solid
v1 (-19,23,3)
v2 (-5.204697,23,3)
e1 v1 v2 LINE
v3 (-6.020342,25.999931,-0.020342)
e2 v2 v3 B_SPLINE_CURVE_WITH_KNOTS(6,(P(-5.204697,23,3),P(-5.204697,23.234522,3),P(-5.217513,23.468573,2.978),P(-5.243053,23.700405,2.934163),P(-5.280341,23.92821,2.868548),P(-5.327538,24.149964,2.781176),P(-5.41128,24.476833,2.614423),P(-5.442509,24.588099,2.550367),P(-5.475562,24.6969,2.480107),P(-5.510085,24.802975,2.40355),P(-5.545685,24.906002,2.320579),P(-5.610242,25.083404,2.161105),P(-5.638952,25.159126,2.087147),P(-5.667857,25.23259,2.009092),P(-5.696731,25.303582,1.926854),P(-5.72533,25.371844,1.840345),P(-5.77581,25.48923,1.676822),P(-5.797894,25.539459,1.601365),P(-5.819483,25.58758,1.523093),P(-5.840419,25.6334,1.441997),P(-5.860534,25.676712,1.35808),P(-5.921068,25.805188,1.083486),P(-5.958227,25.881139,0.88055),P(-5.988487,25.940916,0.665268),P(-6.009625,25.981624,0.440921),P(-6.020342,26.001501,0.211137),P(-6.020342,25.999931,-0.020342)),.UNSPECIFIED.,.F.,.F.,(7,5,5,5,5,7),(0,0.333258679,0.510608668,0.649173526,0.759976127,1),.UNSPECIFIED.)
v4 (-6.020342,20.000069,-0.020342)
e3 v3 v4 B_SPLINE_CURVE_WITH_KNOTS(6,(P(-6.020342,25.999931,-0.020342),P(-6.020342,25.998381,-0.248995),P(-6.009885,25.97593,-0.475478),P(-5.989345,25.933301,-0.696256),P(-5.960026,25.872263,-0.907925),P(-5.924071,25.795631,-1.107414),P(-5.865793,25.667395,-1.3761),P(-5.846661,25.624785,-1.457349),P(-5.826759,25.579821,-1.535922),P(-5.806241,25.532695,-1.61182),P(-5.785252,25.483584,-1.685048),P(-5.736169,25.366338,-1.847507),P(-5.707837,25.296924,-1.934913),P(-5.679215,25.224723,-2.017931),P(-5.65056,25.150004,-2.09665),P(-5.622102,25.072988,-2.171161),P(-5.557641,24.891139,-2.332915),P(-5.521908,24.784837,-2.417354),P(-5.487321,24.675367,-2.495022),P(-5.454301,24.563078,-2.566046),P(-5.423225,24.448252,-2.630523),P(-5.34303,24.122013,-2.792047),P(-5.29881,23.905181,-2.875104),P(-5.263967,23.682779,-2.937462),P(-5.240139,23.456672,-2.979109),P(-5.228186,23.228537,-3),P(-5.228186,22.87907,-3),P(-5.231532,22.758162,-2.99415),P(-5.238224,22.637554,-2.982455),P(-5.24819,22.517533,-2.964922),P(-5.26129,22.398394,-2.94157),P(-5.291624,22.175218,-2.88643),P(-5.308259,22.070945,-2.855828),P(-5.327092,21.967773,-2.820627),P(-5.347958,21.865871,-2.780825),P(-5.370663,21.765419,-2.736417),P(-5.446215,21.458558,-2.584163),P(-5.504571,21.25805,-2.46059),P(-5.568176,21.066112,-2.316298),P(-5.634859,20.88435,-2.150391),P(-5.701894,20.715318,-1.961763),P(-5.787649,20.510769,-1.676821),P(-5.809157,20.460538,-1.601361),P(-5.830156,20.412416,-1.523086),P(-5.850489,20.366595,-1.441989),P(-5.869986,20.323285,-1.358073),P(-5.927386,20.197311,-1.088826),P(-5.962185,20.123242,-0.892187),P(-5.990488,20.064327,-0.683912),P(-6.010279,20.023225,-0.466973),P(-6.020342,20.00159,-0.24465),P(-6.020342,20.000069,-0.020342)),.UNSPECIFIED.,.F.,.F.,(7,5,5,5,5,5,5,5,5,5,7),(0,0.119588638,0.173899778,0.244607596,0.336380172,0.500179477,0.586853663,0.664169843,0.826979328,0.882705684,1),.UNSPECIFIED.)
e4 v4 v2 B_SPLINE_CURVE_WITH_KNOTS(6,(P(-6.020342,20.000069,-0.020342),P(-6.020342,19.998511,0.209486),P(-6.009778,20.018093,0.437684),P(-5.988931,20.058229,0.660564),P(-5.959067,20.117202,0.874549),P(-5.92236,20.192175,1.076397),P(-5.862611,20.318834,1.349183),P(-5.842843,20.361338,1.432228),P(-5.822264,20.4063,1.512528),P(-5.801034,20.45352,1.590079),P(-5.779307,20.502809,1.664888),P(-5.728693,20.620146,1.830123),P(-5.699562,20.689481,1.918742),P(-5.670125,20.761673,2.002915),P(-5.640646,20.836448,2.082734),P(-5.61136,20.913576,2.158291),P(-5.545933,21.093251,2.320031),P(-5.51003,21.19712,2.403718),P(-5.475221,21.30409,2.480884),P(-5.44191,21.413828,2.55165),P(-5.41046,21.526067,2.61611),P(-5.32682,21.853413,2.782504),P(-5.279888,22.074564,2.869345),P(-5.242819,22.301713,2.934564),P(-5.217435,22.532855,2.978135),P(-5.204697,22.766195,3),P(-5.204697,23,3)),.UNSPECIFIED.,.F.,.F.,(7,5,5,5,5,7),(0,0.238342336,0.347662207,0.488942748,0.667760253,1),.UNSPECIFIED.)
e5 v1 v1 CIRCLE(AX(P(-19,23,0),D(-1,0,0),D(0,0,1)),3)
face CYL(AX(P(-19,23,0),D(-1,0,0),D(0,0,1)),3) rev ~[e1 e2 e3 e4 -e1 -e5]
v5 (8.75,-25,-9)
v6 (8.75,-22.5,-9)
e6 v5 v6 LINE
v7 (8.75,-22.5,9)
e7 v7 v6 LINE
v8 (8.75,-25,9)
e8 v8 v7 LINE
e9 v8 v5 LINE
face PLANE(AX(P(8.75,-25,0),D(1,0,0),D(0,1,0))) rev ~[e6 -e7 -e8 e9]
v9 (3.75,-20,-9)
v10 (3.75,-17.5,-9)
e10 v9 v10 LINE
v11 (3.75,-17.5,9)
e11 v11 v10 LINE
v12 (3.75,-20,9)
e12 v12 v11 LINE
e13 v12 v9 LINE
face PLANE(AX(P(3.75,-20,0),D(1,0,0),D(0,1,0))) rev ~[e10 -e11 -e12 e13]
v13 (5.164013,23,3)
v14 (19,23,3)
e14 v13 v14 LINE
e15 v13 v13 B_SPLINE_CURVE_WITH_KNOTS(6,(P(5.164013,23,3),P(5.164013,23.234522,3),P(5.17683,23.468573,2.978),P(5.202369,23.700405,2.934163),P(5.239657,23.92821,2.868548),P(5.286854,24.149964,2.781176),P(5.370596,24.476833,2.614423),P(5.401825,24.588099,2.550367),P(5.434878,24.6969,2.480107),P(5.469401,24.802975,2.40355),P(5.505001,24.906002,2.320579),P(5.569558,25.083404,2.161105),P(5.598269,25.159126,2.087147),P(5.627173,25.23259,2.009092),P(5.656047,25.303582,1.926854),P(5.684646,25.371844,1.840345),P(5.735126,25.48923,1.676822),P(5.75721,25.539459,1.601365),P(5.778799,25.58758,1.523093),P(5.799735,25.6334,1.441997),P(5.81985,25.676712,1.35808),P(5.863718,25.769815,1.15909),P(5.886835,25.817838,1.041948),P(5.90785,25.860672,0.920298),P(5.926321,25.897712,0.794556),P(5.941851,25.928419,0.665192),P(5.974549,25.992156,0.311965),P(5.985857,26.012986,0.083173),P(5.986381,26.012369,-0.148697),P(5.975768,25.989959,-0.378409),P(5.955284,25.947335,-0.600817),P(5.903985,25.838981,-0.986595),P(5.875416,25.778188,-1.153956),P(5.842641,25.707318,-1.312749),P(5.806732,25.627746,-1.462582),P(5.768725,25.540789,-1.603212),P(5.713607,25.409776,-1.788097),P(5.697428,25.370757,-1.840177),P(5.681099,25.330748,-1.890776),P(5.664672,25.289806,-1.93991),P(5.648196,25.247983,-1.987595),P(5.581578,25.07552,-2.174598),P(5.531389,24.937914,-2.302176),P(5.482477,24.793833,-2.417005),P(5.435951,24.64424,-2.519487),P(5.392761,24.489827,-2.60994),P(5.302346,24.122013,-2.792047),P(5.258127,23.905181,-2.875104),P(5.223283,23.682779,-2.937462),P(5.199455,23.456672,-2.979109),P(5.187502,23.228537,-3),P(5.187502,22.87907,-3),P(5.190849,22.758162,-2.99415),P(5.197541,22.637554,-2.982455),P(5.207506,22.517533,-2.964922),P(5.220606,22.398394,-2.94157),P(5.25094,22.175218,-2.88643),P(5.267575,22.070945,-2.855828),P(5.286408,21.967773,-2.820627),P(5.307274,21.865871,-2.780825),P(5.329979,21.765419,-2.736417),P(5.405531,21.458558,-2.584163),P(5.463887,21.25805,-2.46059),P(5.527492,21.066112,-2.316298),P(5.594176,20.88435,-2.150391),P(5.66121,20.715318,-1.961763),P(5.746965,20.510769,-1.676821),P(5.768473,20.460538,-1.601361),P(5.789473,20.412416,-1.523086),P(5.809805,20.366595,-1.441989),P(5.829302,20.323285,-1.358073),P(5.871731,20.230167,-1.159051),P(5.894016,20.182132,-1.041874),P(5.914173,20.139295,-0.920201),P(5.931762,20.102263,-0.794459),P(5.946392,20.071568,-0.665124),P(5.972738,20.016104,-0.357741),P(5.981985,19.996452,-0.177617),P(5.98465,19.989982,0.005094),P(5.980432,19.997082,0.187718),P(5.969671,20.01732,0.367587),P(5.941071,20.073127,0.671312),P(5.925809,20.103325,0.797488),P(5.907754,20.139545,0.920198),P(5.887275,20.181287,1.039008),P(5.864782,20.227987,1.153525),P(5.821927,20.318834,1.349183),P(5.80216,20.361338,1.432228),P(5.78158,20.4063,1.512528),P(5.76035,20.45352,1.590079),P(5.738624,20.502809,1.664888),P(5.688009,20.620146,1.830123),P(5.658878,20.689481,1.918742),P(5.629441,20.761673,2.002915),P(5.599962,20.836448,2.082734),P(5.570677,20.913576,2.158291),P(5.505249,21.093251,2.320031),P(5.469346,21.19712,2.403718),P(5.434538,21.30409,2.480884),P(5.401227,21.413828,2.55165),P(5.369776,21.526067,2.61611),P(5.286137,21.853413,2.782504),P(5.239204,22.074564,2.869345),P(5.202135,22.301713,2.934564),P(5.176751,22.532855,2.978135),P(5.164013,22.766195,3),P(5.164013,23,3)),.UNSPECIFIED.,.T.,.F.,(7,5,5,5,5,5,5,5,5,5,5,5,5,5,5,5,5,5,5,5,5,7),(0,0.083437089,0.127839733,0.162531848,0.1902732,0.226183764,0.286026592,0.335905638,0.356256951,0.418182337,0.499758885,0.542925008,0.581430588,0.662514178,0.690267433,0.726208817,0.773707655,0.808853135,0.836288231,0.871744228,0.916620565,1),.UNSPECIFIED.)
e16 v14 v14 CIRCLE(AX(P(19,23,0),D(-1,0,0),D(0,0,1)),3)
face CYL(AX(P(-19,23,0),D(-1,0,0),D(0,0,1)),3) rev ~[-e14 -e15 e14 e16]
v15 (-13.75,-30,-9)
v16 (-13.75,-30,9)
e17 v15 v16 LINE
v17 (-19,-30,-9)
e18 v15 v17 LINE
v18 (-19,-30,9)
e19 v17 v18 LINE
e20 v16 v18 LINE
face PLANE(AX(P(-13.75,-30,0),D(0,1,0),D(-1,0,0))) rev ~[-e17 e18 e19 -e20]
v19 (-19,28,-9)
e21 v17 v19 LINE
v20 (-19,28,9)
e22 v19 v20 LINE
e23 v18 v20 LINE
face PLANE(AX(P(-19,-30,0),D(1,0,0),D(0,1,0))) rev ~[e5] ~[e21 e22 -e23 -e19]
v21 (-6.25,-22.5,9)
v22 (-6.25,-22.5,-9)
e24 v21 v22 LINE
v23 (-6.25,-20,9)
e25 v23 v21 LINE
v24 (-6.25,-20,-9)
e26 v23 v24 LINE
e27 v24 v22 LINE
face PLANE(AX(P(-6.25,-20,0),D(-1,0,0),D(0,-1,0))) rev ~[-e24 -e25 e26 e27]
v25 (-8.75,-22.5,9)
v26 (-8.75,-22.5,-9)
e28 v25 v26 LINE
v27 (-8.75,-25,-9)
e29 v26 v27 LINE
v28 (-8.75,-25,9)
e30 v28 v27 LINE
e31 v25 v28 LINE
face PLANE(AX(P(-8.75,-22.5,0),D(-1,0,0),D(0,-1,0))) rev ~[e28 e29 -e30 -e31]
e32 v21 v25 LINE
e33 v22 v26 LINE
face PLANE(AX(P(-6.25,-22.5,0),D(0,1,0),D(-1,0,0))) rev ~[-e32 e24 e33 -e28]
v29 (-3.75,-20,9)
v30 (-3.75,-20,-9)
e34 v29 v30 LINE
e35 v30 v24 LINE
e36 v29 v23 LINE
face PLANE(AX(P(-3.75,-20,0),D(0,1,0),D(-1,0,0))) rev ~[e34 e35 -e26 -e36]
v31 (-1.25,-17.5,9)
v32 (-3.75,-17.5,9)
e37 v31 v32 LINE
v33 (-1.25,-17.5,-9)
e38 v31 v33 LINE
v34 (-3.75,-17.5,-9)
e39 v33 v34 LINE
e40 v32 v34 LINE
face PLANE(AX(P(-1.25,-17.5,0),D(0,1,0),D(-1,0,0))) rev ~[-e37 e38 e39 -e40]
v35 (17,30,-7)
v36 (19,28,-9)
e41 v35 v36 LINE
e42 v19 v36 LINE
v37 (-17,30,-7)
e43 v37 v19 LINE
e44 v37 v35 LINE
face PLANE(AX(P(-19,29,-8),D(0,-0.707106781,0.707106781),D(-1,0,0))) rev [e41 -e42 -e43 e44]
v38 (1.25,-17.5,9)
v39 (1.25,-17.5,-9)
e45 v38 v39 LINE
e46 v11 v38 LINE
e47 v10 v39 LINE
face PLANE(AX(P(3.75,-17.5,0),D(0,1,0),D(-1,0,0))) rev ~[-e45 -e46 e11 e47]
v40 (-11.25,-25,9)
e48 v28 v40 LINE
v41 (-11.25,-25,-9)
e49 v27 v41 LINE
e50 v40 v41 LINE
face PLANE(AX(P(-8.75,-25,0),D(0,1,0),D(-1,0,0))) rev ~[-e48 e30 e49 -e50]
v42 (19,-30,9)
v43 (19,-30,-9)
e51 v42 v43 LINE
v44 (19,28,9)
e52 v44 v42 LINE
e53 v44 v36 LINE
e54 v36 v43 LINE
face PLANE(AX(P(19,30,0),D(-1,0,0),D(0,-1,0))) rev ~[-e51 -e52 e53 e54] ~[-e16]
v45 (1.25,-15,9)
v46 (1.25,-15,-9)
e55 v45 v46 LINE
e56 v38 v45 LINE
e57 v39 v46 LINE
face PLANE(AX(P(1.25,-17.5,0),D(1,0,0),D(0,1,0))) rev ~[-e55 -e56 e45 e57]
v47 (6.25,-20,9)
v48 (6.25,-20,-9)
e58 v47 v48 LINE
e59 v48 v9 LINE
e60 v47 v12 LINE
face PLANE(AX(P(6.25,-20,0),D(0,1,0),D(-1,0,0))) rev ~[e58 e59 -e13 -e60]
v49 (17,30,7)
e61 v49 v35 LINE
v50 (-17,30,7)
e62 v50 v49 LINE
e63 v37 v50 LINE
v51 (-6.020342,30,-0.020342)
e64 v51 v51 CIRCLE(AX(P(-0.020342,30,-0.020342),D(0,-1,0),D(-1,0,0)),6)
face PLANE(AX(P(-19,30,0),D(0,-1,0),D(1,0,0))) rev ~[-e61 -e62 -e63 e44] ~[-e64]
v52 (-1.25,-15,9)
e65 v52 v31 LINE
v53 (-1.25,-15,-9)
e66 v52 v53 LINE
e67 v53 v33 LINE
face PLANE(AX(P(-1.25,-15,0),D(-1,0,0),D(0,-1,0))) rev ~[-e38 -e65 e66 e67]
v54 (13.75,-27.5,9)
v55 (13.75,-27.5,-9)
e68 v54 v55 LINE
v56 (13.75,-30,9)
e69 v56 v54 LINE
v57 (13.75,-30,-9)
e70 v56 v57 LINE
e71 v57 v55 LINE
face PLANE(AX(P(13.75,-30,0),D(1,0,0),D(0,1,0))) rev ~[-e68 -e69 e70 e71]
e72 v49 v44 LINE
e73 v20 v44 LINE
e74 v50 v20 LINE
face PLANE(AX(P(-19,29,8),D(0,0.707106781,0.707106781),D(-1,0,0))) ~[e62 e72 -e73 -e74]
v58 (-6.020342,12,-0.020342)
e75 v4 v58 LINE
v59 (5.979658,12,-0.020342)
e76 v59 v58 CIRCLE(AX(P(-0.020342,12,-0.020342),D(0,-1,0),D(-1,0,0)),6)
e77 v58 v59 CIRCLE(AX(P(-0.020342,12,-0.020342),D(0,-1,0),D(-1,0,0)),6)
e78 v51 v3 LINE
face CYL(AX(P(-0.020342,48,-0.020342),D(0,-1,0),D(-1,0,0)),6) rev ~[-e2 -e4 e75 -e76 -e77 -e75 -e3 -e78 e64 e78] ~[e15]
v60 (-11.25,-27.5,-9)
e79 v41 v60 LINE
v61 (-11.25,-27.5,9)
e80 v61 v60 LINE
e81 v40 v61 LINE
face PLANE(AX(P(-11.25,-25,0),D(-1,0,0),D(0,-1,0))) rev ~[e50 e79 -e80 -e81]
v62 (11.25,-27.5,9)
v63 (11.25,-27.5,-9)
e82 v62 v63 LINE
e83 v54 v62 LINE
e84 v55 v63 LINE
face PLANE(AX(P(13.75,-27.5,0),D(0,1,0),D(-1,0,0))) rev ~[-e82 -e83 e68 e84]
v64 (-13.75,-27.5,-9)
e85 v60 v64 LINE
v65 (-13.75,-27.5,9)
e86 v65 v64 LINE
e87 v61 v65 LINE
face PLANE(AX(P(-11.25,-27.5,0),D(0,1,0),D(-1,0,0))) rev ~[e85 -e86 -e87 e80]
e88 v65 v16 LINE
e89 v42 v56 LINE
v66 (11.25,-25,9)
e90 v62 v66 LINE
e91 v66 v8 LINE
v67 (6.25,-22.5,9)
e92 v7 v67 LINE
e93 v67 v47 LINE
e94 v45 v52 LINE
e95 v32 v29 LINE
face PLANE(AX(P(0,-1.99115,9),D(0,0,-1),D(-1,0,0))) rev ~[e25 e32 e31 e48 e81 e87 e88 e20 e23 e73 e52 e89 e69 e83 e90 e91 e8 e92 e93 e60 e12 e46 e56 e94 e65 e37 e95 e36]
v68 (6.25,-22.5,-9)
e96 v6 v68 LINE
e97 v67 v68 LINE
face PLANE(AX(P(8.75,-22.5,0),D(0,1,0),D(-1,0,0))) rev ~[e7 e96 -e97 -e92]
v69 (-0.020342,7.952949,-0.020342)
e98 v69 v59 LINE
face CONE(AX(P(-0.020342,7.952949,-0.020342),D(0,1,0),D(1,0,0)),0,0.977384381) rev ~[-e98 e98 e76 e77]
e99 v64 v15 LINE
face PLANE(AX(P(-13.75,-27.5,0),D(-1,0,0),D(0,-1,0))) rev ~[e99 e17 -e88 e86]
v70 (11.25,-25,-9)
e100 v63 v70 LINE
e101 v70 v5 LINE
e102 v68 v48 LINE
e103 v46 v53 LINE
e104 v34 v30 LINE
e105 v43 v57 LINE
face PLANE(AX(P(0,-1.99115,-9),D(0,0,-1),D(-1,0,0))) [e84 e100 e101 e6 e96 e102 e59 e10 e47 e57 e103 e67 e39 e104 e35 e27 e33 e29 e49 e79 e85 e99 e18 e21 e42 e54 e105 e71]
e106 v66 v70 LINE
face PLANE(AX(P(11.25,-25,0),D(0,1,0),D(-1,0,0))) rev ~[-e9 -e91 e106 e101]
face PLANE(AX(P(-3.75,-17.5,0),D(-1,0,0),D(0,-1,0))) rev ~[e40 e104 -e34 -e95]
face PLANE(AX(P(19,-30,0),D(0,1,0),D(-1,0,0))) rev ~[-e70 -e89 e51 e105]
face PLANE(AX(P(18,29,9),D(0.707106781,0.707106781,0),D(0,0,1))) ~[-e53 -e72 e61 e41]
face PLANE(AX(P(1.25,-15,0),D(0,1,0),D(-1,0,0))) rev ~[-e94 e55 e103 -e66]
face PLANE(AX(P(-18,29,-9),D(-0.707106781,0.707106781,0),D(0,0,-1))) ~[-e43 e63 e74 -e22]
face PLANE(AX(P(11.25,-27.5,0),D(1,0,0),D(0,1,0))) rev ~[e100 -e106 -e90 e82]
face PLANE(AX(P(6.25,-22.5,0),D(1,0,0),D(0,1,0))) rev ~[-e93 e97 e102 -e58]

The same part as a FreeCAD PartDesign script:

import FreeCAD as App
import Part
import Sketcher


def edges_at(feature, points):
    """Names of the edges that pass closest to the given points."""
    edges = feature.Shape.Edges
    near = lambda p: min(range(len(edges)), key=lambda i: edges[i].distToShape(Part.Vertex(*p))[0])
    return sorted({f"Edge{near(p) + 1}" for p in points})

doc = App.newDocument("Part")
body = doc.addObject("PartDesign::Body", "Body")

# Sketch on XY plane
sketch1 = body.newObject("Sketcher::SketchObject", "Sketch")
sketch1.AttachmentSupport = (doc.getObject("XY_Plane"), [""])
sketch1.MapMode = "FlatFace"
sketch1.addGeometry([
    Part.LineSegment(App.Vector(19, 30, 0), App.Vector(-19, 30, 0)),  # 0
    Part.LineSegment(App.Vector(-19, 30, 0), App.Vector(-19, -30, 0)),  # 1
    Part.LineSegment(App.Vector(-19, -30, 0), App.Vector(-13.8, -30, 0)),  # 2
    Part.LineSegment(App.Vector(-13.8, -30, 0), App.Vector(-13.8, -27.5, 0)),  # 3
    Part.LineSegment(App.Vector(-13.8, -27.5, 0), App.Vector(-11.2, -27.5, 0)),  # 4
    Part.LineSegment(App.Vector(-11.2, -27.5, 0), App.Vector(-11.2, -25, 0)),  # 5
    Part.LineSegment(App.Vector(-11.2, -25, 0), App.Vector(-8.8, -25, 0)),  # 6
    Part.LineSegment(App.Vector(-8.8, -25, 0), App.Vector(-8.8, -22.5, 0)),  # 7
    Part.LineSegment(App.Vector(-8.8, -22.5, 0), App.Vector(-6.2, -22.5, 0)),  # 8
    Part.LineSegment(App.Vector(-6.2, -22.5, 0), App.Vector(-6.2, -20, 0)),  # 9
    Part.LineSegment(App.Vector(-6.2, -20, 0), App.Vector(-3.8, -20, 0)),  # 10
    Part.LineSegment(App.Vector(-3.8, -20, 0), App.Vector(-3.8, -17.5, 0)),  # 11
    Part.LineSegment(App.Vector(-3.8, -17.5, 0), App.Vector(-1.2, -17.5, 0)),  # 12
    Part.LineSegment(App.Vector(-1.2, -17.5, 0), App.Vector(-1.2, -15, 0)),  # 13
    Part.LineSegment(App.Vector(-1.2, -15, 0), App.Vector(1.2, -15, 0)),  # 14
    Part.LineSegment(App.Vector(1.2, -15, 0), App.Vector(1.2, -17.5, 0)),  # 15
    Part.LineSegment(App.Vector(1.2, -17.5, 0), App.Vector(3.8, -17.5, 0)),  # 16
    Part.LineSegment(App.Vector(3.8, -17.5, 0), App.Vector(3.8, -20, 0)),  # 17
    Part.LineSegment(App.Vector(3.8, -20, 0), App.Vector(6.2, -20, 0)),  # 18
    Part.LineSegment(App.Vector(6.2, -20, 0), App.Vector(6.2, -22.5, 0)),  # 19
    Part.LineSegment(App.Vector(6.2, -22.5, 0), App.Vector(8.8, -22.5, 0)),  # 20
    Part.LineSegment(App.Vector(8.8, -22.5, 0), App.Vector(8.8, -25, 0)),  # 21
    Part.LineSegment(App.Vector(8.8, -25, 0), App.Vector(11.2, -25, 0)),  # 22
    Part.LineSegment(App.Vector(11.2, -25, 0), App.Vector(11.2, -27.5, 0)),  # 23
    Part.LineSegment(App.Vector(11.2, -27.5, 0), App.Vector(13.8, -27.5, 0)),  # 24
    Part.LineSegment(App.Vector(13.8, -27.5, 0), App.Vector(13.8, -30, 0)),  # 25
    Part.LineSegment(App.Vector(13.8, -30, 0), App.Vector(19, -30, 0)),  # 26
    Part.LineSegment(App.Vector(19, -30, 0), App.Vector(19, 30, 0)),  # 27
], False)
sketch1.addConstraint([
    Sketcher.Constraint("Coincident", 0, 2, 1, 1),
    Sketcher.Constraint("Coincident", 1, 2, 2, 1),
    Sketcher.Constraint("Coincident", 2, 2, 3, 1),
    Sketcher.Constraint("Coincident", 3, 2, 4, 1),
    Sketcher.Constraint("Coincident", 4, 2, 5, 1),
    Sketcher.Constraint("Coincident", 5, 2, 6, 1),
    Sketcher.Constraint("Coincident", 6, 2, 7, 1),
    Sketcher.Constraint("Coincident", 7, 2, 8, 1),
    Sketcher.Constraint("Coincident", 8, 2, 9, 1),
    Sketcher.Constraint("Coincident", 9, 2, 10, 1),
    Sketcher.Constraint("Coincident", 10, 2, 11, 1),
    Sketcher.Constraint("Coincident", 11, 2, 12, 1),
    Sketcher.Constraint("Coincident", 12, 2, 13, 1),
    Sketcher.Constraint("Coincident", 13, 2, 14, 1),
    Sketcher.Constraint("Coincident", 14, 2, 15, 1),
    Sketcher.Constraint("Coincident", 15, 2, 16, 1),
    Sketcher.Constraint("Coincident", 16, 2, 17, 1),
    Sketcher.Constraint("Coincident", 17, 2, 18, 1),
    Sketcher.Constraint("Coincident", 18, 2, 19, 1),
    Sketcher.Constraint("Coincident", 19, 2, 20, 1),
    Sketcher.Constraint("Coincident", 20, 2, 21, 1),
    Sketcher.Constraint("Coincident", 21, 2, 22, 1),
    Sketcher.Constraint("Coincident", 22, 2, 23, 1),
    Sketcher.Constraint("Coincident", 23, 2, 24, 1),
    Sketcher.Constraint("Coincident", 24, 2, 25, 1),
    Sketcher.Constraint("Coincident", 25, 2, 26, 1),
    Sketcher.Constraint("Coincident", 26, 2, 27, 1),
    Sketcher.Constraint("Coincident", 27, 2, 0, 1),
    Sketcher.Constraint("Horizontal", 0),
    Sketcher.Constraint("Vertical", 1),
    Sketcher.Constraint("Horizontal", 2),
    Sketcher.Constraint("Vertical", 3),
    Sketcher.Constraint("Horizontal", 4),
    Sketcher.Constraint("Vertical", 5),
    Sketcher.Constraint("Horizontal", 6),
    Sketcher.Constraint("Vertical", 7),
    Sketcher.Constraint("Horizontal", 8),
    Sketcher.Constraint("Vertical", 9),
    Sketcher.Constraint("Horizontal", 10),
    Sketcher.Constraint("Vertical", 11),
    Sketcher.Constraint("Horizontal", 12),
    Sketcher.Constraint("Vertical", 13),
    Sketcher.Constraint("Horizontal", 14),
    Sketcher.Constraint("Vertical", 15),
    Sketcher.Constraint("Horizontal", 16),
    Sketcher.Constraint("Vertical", 17),
    Sketcher.Constraint("Horizontal", 18),
    Sketcher.Constraint("Vertical", 19),
    Sketcher.Constraint("Horizontal", 20),
    Sketcher.Constraint("Vertical", 21),
    Sketcher.Constraint("Horizontal", 22),
    Sketcher.Constraint("Vertical", 23),
    Sketcher.Constraint("Horizontal", 24),
    Sketcher.Constraint("Vertical", 25),
    Sketcher.Constraint("Horizontal", 26),
    Sketcher.Constraint("Vertical", 27),
    Sketcher.Constraint("Symmetric", 0, 2, 26, 2, -1, 1),
    Sketcher.Constraint("Symmetric", 12, 2, 15, 2, -2),
    Sketcher.Constraint("Symmetric", 10, 2, 17, 2, -2),
    Sketcher.Constraint("Symmetric", 8, 2, 19, 2, -2),
    Sketcher.Constraint("Symmetric", 6, 2, 21, 2, -2),
    Sketcher.Constraint("Symmetric", 4, 2, 23, 2, -2),
    Sketcher.Constraint("Symmetric", 2, 2, 25, 2, -2),
    Sketcher.Constraint("Equal", 4, 6),
    Sketcher.Constraint("Equal", 6, 8),
    Sketcher.Constraint("Equal", 8, 10),
    Sketcher.Constraint("Equal", 10, 12),
    Sketcher.Constraint("Equal", 12, 14),
    Sketcher.Constraint("Equal", 24, 3),
    Sketcher.Constraint("Equal", 3, 5),
    Sketcher.Constraint("Equal", 5, 7),
    Sketcher.Constraint("Equal", 7, 9),
    Sketcher.Constraint("Equal", 9, 11),
    Sketcher.Constraint("Equal", 11, 13),
    Sketcher.Constraint("DistanceX", 0, 2, 0, 1, 38.0),
    Sketcher.Constraint("DistanceY", 1, 2, 1, 1, 60.0),
    Sketcher.Constraint("DistanceX", 4, 1, 4, 2, 2.5),
])
pad1 = body.newObject("PartDesign::Pad", "Pad")
pad1.Profile = sketch1
pad1.Length = 18
pad1.Midplane = True

# Sketch on XZ plane
sketch2 = body.newObject("Sketcher::SketchObject", "Sketch001")
sketch2.AttachmentSupport = (doc.getObject("XZ_Plane"), [""])
sketch2.MapMode = "FlatFace"
sketch2.AttachmentOffset = App.Placement(App.Vector(0, 0, -30), App.Rotation())
sketch2.addGeometry(Part.Circle(App.Vector(0, 0, 0), App.Vector(0, 0, 1), 6), False)
sketch2.addConstraint([
    Sketcher.Constraint("Diameter", 0, 12.0),
    Sketcher.Constraint("DistanceX", 0, 3, -1, 1, 0.020342),
    Sketcher.Constraint("DistanceY", 0, 3, -1, 1, 0.020342),
])
doc.recompute()
hole = body.newObject("PartDesign::Hole", "Hole")
hole.Profile = sketch2
hole.ThreadType = "None"
hole.Diameter = 12
hole.DepthType = "Dimension"
hole.Depth = 18
hole.DrillPoint = "Angled"
hole.DrillPointAngle = 112
hole.Reversed = True

# Sketch on YZ plane
sketch3 = body.newObject("Sketcher::SketchObject", "Sketch002")
sketch3.AttachmentSupport = (doc.getObject("YZ_Plane"), [""])
sketch3.MapMode = "FlatFace"
sketch3.AttachmentOffset = App.Placement(App.Vector(0, 0, -19), App.Rotation())
sketch3.addGeometry(Part.Circle(App.Vector(23, 0, 0), App.Vector(0, 0, 1), 3), False)
sketch3.addConstraint([
    Sketcher.Constraint("PointOnObject", 0, 3, -1),
    Sketcher.Constraint("Diameter", 0, 6.0),
    Sketcher.Constraint("DistanceX", -1, 1, 0, 3, 23.0),
])
pocket1 = body.newObject("PartDesign::Pocket", "Pocket")
pocket1.Profile = sketch3
pocket1.Type = "ThroughAll"
pocket1.Reversed = True
doc.recompute()

chamfer = body.newObject("PartDesign::Chamfer", "Chamfer")
chamfer.Base = (pocket1, edges_at(pocket1, [
    (0, 30, 9),
    (0, 30, -9),
    (-19, 30, 0),
    (19, 30, 0),
]))
chamfer.Size = 2

doc.recompute()
